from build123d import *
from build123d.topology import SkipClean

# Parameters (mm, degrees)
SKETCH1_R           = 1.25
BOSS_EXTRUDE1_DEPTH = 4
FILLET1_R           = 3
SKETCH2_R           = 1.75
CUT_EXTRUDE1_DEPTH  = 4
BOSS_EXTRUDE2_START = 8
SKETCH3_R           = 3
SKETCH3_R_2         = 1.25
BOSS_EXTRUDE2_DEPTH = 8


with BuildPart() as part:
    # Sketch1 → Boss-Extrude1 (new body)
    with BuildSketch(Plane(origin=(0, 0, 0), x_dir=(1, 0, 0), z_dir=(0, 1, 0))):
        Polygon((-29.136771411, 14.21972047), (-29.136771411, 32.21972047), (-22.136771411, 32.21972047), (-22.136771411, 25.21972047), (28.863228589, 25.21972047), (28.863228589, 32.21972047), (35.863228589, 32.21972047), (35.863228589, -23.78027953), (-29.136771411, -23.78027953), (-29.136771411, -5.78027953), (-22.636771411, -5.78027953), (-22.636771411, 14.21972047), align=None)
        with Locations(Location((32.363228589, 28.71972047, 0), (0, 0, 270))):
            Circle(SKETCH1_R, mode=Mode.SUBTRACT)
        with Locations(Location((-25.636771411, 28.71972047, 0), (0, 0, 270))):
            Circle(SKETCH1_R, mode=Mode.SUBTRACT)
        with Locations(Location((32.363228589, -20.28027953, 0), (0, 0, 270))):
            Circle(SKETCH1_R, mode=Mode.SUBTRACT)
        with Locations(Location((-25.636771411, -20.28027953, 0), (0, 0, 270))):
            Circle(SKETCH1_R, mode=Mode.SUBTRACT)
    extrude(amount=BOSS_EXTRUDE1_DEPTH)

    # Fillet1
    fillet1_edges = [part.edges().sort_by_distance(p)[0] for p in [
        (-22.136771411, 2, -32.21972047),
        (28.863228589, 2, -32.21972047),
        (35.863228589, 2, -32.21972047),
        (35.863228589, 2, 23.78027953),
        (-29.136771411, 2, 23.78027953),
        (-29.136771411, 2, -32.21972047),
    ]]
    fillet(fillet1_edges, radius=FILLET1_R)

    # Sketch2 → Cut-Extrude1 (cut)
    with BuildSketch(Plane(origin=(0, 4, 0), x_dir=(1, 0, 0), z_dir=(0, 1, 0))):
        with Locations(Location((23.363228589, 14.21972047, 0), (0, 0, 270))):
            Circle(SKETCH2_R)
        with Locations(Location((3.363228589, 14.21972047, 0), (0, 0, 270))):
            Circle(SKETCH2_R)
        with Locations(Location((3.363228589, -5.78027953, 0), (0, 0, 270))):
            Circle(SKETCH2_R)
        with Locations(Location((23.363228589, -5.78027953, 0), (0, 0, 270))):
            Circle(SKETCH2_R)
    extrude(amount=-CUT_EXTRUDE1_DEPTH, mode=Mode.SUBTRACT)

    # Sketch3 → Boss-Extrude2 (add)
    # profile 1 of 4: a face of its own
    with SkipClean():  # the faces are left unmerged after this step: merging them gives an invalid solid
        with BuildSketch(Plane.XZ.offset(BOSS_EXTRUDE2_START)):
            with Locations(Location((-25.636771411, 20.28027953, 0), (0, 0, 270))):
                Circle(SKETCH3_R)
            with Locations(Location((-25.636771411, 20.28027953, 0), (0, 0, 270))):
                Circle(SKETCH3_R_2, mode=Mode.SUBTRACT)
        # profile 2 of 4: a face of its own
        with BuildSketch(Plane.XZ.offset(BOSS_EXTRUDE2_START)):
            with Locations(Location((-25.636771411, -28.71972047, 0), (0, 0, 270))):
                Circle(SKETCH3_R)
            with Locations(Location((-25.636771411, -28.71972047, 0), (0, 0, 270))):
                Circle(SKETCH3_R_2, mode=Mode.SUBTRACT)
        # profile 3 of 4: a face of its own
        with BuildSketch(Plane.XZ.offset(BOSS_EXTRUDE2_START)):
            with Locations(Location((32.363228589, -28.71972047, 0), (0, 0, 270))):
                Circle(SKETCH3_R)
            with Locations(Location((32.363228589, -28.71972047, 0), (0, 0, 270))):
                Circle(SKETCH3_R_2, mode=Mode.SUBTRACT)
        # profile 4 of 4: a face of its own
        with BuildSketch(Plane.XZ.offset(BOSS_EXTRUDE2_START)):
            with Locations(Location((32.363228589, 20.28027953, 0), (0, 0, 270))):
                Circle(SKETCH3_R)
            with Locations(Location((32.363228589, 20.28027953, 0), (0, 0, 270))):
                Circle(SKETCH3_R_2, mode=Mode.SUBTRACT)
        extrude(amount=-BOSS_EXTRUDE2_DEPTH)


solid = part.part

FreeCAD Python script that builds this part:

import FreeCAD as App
import Part
import Sketcher


def edges_at(feature, points):
    """Names of the edges that pass closest to the given points."""
    edges = feature.Shape.Edges
    near = lambda p: min(range(len(edges)), key=lambda i: edges[i].distToShape(Part.Vertex(*p))[0])
    return sorted({f"Edge{near(p) + 1}" for p in points})


def add_polygon(sketch, points):
    """Adds a closed chain of lines whose ends are joined by coincident constraints."""
    first, n = sketch.GeometryCount, len(points)
    for a, b in zip(points, points[1:] + points[:1]):
        sketch.addGeometry(Part.LineSegment(App.Vector(*a, 0), App.Vector(*b, 0)), False)
    for i in range(n):
        sketch.addConstraint(Sketcher.Constraint("Coincident", first + i, 2, first + (i + 1) % n, 1))

doc = App.newDocument("Part")
body = doc.addObject("PartDesign::Body", "Body")

# Sketch on XZ plane
sketch1 = body.newObject("Sketcher::SketchObject", "Sketch")
sketch1.AttachmentSupport = (doc.getObject("XZ_Plane"), [""])
sketch1.MapMode = "FlatFace"
add_polygon(sketch1, [(-29.1, -32.2), (-29.1, -14.2), (-22.6, -14.2), (-22.6, 5.8), (-29.1, 5.8), (-29.1, 23.8), (35.9, 23.8), (35.9, -32.2), (28.9, -32.2), (28.9, -25.2), (-22.1, -25.2), (-22.1, -32.2)])  # lines 0-11
sketch1.addGeometry(Part.Circle(App.Vector(32.4, 20.3, 0), App.Vector(0, 0, 1), 1.2), False)  # 12
sketch1.addGeometry(Part.Circle(App.Vector(-25.6, 20.3, 0), App.Vector(0, 0, 1), 1.2), False)  # 13
sketch1.addGeometry(Part.Circle(App.Vector(32.4, -28.7, 0), App.Vector(0, 0, 1), 1.2), False)  # 14
sketch1.addGeometry(Part.Circle(App.Vector(-25.6, -28.7, 0), App.Vector(0, 0, 1), 1.2), False)  # 15
sketch1.addConstraint(Sketcher.Constraint("Vertical", 0))
sketch1.addConstraint(Sketcher.Constraint("Horizontal", 1))
sketch1.addConstraint(Sketcher.Constraint("Vertical", 2))
sketch1.addConstraint(Sketcher.Constraint("Horizontal", 3))
sketch1.addConstraint(Sketcher.Constraint("Vertical", 4))
sketch1.addConstraint(Sketcher.Constraint("Horizontal", 5))
sketch1.addConstraint(Sketcher.Constraint("Vertical", 6))
sketch1.addConstraint(Sketcher.Constraint("Horizontal", 7))
sketch1.addConstraint(Sketcher.Constraint("Vertical", 8))
sketch1.addConstraint(Sketcher.Constraint("Horizontal", 9))
sketch1.addConstraint(Sketcher.Constraint("Vertical", 10))
sketch1.addConstraint(Sketcher.Constraint("Horizontal", 11))
sketch1.addConstraint(Sketcher.Constraint("Equal", 12, 13))
sketch1.addConstraint(Sketcher.Constraint("Equal", 13, 14))
sketch1.addConstraint(Sketcher.Constraint("Equal", 14, 15))
sketch1.addConstraint(Sketcher.Constraint("Horizontal", 12, 3, 13, 3))
sketch1.addConstraint(Sketcher.Constraint("Horizontal", 14, 3, 15, 3))
sketch1.addConstraint(Sketcher.Constraint("Horizontal", 7, 2, 10, 2))
sketch1.addConstraint(Sketcher.Constraint("Vertical", 12, 3, 14, 3))
sketch1.addConstraint(Sketcher.Constraint("Vertical", 13, 3, 15, 3))
sketch1.addConstraint(Sketcher.Constraint("Vertical", 0, 2, 3, 2))
sketch1.addConstraint(Sketcher.Constraint("Equal", 7, 11))
sketch1.addConstraint(Sketcher.Constraint("Equal", 0, 4))
sketch1.addConstraint(Sketcher.Constraint("Equal", 11, 8))
sketch1.addConstraint(Sketcher.Constraint("Diameter", 12, 2.5))
sketch1.addConstraint(Sketcher.Constraint("DistanceX", 5, 1, 5, 2, 65.0))
sketch1.addConstraint(Sketcher.Constraint("DistanceX", 7, 2, 7, 1, 7.0))
sketch1.addConstraint(Sketcher.Constraint("DistanceY", 0, 1, 0, 2, 18.0))
sketch1.addConstraint(Sketcher.Constraint("DistanceY", 2, 1, 2, 2, 20.0))
sketch1.addConstraint(Sketcher.Constraint("DistanceX", 1, 1, 1, 2, 6.5))
sketch1.addConstraint(Sketcher.Constraint("DistanceX", 13, 3, 12, 3, 58.0))
sketch1.addConstraint(Sketcher.Constraint("DistanceY", 14, 3, 12, 3, 49.0))
sketch1.addConstraint(Sketcher.Constraint("DistanceX", 15, 3, 1, 2, 3.0))
sketch1.addConstraint(Sketcher.Constraint("DistanceY", 15, 3, 0, 2, 14.5))
sketch1.addConstraint(Sketcher.Constraint("DistanceX", -1, 1, 12, 3, 32.363229))
sketch1.addConstraint(Sketcher.Constraint("DistanceY", -1, 1, 12, 3, 20.28028))
pad1 = body.newObject("PartDesign::Pad", "Pad")
pad1.Profile = sketch1
pad1.Length = 4
pad1.Reversed = True
doc.recompute()

fillet = body.newObject("PartDesign::Fillet", "Fillet")
fillet.Base = (pad1, edges_at(pad1, [
    (-22.137, 2, -32.22),
    (28.863, 2, -32.22),
    (35.863, 2, -32.22),
    (35.863, 2, 23.78),
    (-29.137, 2, 23.78),
    (-29.137, 2, -32.22),
]))
fillet.Radius = 3

# Sketch on XZ plane
sketch2 = body.newObject("Sketcher::SketchObject", "Sketch001")
sketch2.AttachmentSupport = (doc.getObject("XZ_Plane"), [""])
sketch2.MapMode = "FlatFace"
sketch2.AttachmentOffset = App.Placement(App.Vector(0, 0, -4), App.Rotation())
sketch2.addGeometry(Part.Circle(App.Vector(23.4, -14.2, 0), App.Vector(0, 0, 1), 1.8), False)
sketch2.addGeometry(Part.Circle(App.Vector(3.4, -14.2, 0), App.Vector(0, 0, 1), 1.8), False)
sketch2.addGeometry(Part.Circle(App.Vector(3.4, 5.8, 0), App.Vector(0, 0, 1), 1.8), False)
sketch2.addGeometry(Part.Circle(App.Vector(23.4, 5.8, 0), App.Vector(0, 0, 1), 1.8), False)
sketch2.addConstraint(Sketcher.Constraint("Equal", 0, 1))
sketch2.addConstraint(Sketcher.Constraint("Equal", 1, 2))
sketch2.addConstraint(Sketcher.Constraint("Equal", 2, 3))
sketch2.addConstraint(Sketcher.Constraint("Horizontal", 0, 3, 1, 3))
sketch2.addConstraint(Sketcher.Constraint("Horizontal", 2, 3, 3, 3))
sketch2.addConstraint(Sketcher.Constraint("Vertical", 1, 3, 2, 3))
sketch2.addConstraint(Sketcher.Constraint("Vertical", 0, 3, 3, 3))
sketch2.addConstraint(Sketcher.Constraint("Diameter", 0, 3.5))
sketch2.addConstraint(Sketcher.Constraint("DistanceX", 1, 3, 0, 3, 20.0))
sketch2.addConstraint(Sketcher.Constraint("DistanceY", 1, 3, 2, 3, 20.0))
sketch2.addConstraint(Sketcher.Constraint("DistanceX", -1, 1, 0, 3, 23.363229))
sketch2.addConstraint(Sketcher.Constraint("DistanceY", 0, 3, -1, 1, 14.21972))
pocket1 = body.newObject("PartDesign::Pocket", "Pocket")
pocket1.Profile = sketch2
pocket1.Length = 4
pocket1.Reversed = True

# Sketch on XZ plane
sketch3 = body.newObject("Sketcher::SketchObject", "Sketch002")
sketch3.AttachmentSupport = (doc.getObject("XZ_Plane"), [""])
sketch3.MapMode = "FlatFace"
sketch3.AttachmentOffset = App.Placement(App.Vector(0, 0, 8), App.Rotation())
sketch3.addGeometry(Part.Circle(App.Vector(-25.6, 20.3, 0), App.Vector(0, 0, 1), 3), False)
sketch3.addGeometry(Part.Circle(App.Vector(-25.6, 20.3, 0), App.Vector(0, 0, 1), 1.2), False)
sketch3.addGeometry(Part.Circle(App.Vector(-25.6, -28.7, 0), App.Vector(0, 0, 1), 3), False)
sketch3.addGeometry(Part.Circle(App.Vector(-25.6, -28.7, 0), App.Vector(0, 0, 1), 1.2), False)
sketch3.addGeometry(Part.Circle(App.Vector(32.4, -28.7, 0), App.Vector(0, 0, 1), 3), False)
sketch3.addGeometry(Part.Circle(App.Vector(32.4, -28.7, 0), App.Vector(0, 0, 1), 1.2), False)
sketch3.addGeometry(Part.Circle(App.Vector(32.4, 20.3, 0), App.Vector(0, 0, 1), 3), False)
sketch3.addGeometry(Part.Circle(App.Vector(32.4, 20.3, 0), App.Vector(0, 0, 1), 1.2), False)
sketch3.addConstraint(Sketcher.Constraint("Coincident", 1, 3, 0, 3))
sketch3.addConstraint(Sketcher.Constraint("Coincident", 3, 3, 2, 3))
sketch3.addConstraint(Sketcher.Constraint("Coincident", 5, 3, 4, 3))
sketch3.addConstraint(Sketcher.Constraint("Coincident", 7, 3, 6, 3))
sketch3.addConstraint(Sketcher.Constraint("Equal", 0, 2))
sketch3.addConstraint(Sketcher.Constraint("Equal", 1, 3))
sketch3.addConstraint(Sketcher.Constraint("Equal", 2, 4))
sketch3.addConstraint(Sketcher.Constraint("Equal", 3, 5))
sketch3.addConstraint(Sketcher.Constraint("Equal", 4, 6))
sketch3.addConstraint(Sketcher.Constraint("Equal", 5, 7))
sketch3.addConstraint(Sketcher.Constraint("Horizontal", 3, 3, 4, 3))
sketch3.addConstraint(Sketcher.Constraint("Horizontal", 1, 3, 6, 3))
sketch3.addConstraint(Sketcher.Constraint("Vertical", 1, 3, 2, 3))
sketch3.addConstraint(Sketcher.Constraint("Vertical", 5, 3, 6, 3))
sketch3.addConstraint(Sketcher.Constraint("Diameter", 0, 6.0))
sketch3.addConstraint(Sketcher.Constraint("Diameter", 1, 2.5))
sketch3.addConstraint(Sketcher.Constraint("DistanceY", 2, 3, 0, 3, 49.0))
sketch3.addConstraint(Sketcher.Constraint("DistanceX", 2, 3, 4, 3, 58.0))
sketch3.addConstraint(Sketcher.Constraint("DistanceX", 0, 3, -1, 1, 25.636771))
sketch3.addConstraint(Sketcher.Constraint("DistanceY", -1, 1, 0, 3, 20.28028))
pad2 = body.newObject("PartDesign::Pad", "Pad001")
pad2.Profile = sketch3
pad2.Length = 8
pad2.Reversed = True

doc.recompute()
